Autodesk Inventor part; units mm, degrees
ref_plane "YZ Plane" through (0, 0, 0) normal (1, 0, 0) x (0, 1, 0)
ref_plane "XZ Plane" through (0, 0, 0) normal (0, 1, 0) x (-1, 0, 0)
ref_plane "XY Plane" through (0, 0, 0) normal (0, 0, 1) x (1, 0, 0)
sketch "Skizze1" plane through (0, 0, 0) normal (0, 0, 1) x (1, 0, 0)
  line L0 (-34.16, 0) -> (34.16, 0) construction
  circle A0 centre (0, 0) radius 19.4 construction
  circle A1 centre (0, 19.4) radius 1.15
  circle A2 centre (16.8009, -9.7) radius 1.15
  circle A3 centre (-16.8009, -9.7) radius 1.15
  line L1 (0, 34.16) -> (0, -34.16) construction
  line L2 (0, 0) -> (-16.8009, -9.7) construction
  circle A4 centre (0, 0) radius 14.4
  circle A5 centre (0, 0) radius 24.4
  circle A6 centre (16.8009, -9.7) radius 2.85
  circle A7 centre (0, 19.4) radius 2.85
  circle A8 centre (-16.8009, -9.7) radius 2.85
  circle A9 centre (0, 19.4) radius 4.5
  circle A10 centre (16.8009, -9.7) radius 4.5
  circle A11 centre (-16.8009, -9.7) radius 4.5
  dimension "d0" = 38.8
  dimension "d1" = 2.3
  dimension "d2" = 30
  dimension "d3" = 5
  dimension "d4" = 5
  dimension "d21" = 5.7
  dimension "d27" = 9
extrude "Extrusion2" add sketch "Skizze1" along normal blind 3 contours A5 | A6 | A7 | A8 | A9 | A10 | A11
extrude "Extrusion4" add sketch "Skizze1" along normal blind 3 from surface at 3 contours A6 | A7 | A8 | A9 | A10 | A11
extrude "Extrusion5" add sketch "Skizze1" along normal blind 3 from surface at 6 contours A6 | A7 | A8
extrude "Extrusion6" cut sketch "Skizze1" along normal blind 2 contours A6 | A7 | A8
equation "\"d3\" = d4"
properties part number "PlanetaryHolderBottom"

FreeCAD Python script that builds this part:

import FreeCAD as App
import Part
import Sketcher
from FreeCAD import Vector
Q = App.Units.Quantity

doc = App.newDocument("Part")
body = doc.addObject("PartDesign::Body", "Body")

# Sketch on XY plane
sketch1 = body.newObject("Sketcher::SketchObject", "Sketch")
sketch1.AttachmentSupport = (doc.getObject("XY_Plane"), [""])
sketch1.MapMode = "FlatFace"
sketch1.addGeometry([
    Part.Circle(Vector(0, 0, 0), Vector(0, 0, 1), 24.4),  # 0
    Part.Circle(Vector(0, 0, 0), Vector(0, 0, 1), 14.4),  # 1
    Part.Circle(Vector(-16.8009, -9.7, 0), Vector(0, 0, 1), 1.15),  # 2
    Part.Circle(Vector(16.8009, -9.7, 0), Vector(0, 0, 1), 1.15),  # 3
    Part.Circle(Vector(0, 19.4, 0), Vector(0, 0, 1), 1.15),  # 4
], False)
sketch1.addConstraint([
    Sketcher.Constraint("Coincident", 0, 3, -1, 1),
    Sketcher.Constraint("Coincident", 1, 3, -1, 1),
    Sketcher.Constraint("Equal", 2, 3),
    Sketcher.Constraint("Equal", 3, 4),
    Sketcher.Constraint("Symmetric", 2, 3, 3, 3, -2),
    Sketcher.Constraint("PointOnObject", 4, 3, -2),
    Sketcher.Constraint("Diameter", 2, Q("2.3 mm")),
    Sketcher.Constraint("Diameter", 0, Q("48.8 mm")),
    Sketcher.Constraint("Diameter", 1, Q("28.8 mm")),
    Sketcher.Constraint("DistanceY", 2, 3, -1, 1, Q("9.7 mm")),
    Sketcher.Constraint("DistanceY", -1, 1, 4, 3, Q("19.4 mm")),
    Sketcher.Constraint("DistanceX", 2, 3, -1, 1, Q("16.801 mm")),
])
pad1 = body.newObject("PartDesign::Pad", "Pad")
pad1.Profile = sketch1
pad1.Length = 3

# Sketch on XY plane
sketch2 = body.newObject("Sketcher::SketchObject", "Sketch001")
sketch2.AttachmentSupport = (doc.getObject("XY_Plane"), [""])
sketch2.MapMode = "FlatFace"
sketch2.AttachmentOffset = App.Placement(Vector(0, 0, 3), App.Rotation())
sketch2.addGeometry([
    Part.Circle(Vector(16.8009, -9.7, 0), Vector(0, 0, 1), 4.5),  # 0
    Part.Circle(Vector(16.8009, -9.7, 0), Vector(0, 0, 1), 1.15),  # 1
    Part.Circle(Vector(0, 19.4, 0), Vector(0, 0, 1), 4.5),  # 2
    Part.Circle(Vector(0, 19.4, 0), Vector(0, 0, 1), 1.15),  # 3
    Part.Circle(Vector(-16.8009, -9.7, 0), Vector(0, 0, 1), 4.5),  # 4
    Part.Circle(Vector(-16.8009, -9.7, 0), Vector(0, 0, 1), 1.15),  # 5
], False)
sketch2.addConstraint([
    Sketcher.Constraint("Coincident", 1, 3, 0, 3),
    Sketcher.Constraint("Coincident", 3, 3, 2, 3),
    Sketcher.Constraint("Coincident", 5, 3, 4, 3),
    Sketcher.Constraint("Equal", 0, 2),
    Sketcher.Constraint("Equal", 1, 3),
    Sketcher.Constraint("Equal", 2, 4),
    Sketcher.Constraint("Equal", 3, 5),
    Sketcher.Constraint("Symmetric", 0, 3, 4, 3, -2),
    Sketcher.Constraint("PointOnObject", 2, 3, -2),
    Sketcher.Constraint("Diameter", 0, Q("9 mm")),
    Sketcher.Constraint("Diameter", 1, Q("2.3 mm")),
    Sketcher.Constraint("DistanceY", 0, 3, -1, 1, Q("9.7 mm")),
    Sketcher.Constraint("DistanceY", -1, 1, 2, 3, Q("19.4 mm")),
    Sketcher.Constraint("DistanceX", -1, 1, 0, 3, Q("16.801 mm")),
])
pad2 = body.newObject("PartDesign::Pad", "Pad001")
pad2.Profile = sketch2
pad2.Length = 3

# Sketch on XY plane
sketch3 = body.newObject("Sketcher::SketchObject", "Sketch002")
sketch3.AttachmentSupport = (doc.getObject("XY_Plane"), [""])
sketch3.MapMode = "FlatFace"
sketch3.AttachmentOffset = App.Placement(Vector(0, 0, 6), App.Rotation())
sketch3.addGeometry([
    Part.Circle(Vector(16.8009, -9.7, 0), Vector(0, 0, 1), 2.85),  # 0
    Part.Circle(Vector(16.8009, -9.7, 0), Vector(0, 0, 1), 1.15),  # 1
    Part.Circle(Vector(0, 19.4, 0), Vector(0, 0, 1), 2.85),  # 2
    Part.Circle(Vector(0, 19.4, 0), Vector(0, 0, 1), 1.15),  # 3
    Part.Circle(Vector(-16.8009, -9.7, 0), Vector(0, 0, 1), 2.85),  # 4
    Part.Circle(Vector(-16.8009, -9.7, 0), Vector(0, 0, 1), 1.15),  # 5
], False)
sketch3.addConstraint([
    Sketcher.Constraint("Coincident", 1, 3, 0, 3),
    Sketcher.Constraint("Coincident", 3, 3, 2, 3),
    Sketcher.Constraint("Coincident", 5, 3, 4, 3),
    Sketcher.Constraint("Equal", 0, 2),
    Sketcher.Constraint("Equal", 1, 3),
    Sketcher.Constraint("Equal", 2, 4),
    Sketcher.Constraint("Equal", 3, 5),
    Sketcher.Constraint("Symmetric", 0, 3, 4, 3, -2),
    Sketcher.Constraint("PointOnObject", 2, 3, -2),
    Sketcher.Constraint("Diameter", 0, Q("5.7 mm")),
    Sketcher.Constraint("Diameter", 1, Q("2.3 mm")),
    Sketcher.Constraint("DistanceY", 0, 3, -1, 1, Q("9.7 mm")),
    Sketcher.Constraint("DistanceY", -1, 1, 2, 3, Q("19.4 mm")),
    Sketcher.Constraint("DistanceX", -1, 1, 0, 3, Q("16.801 mm")),
])
pad3 = body.newObject("PartDesign::Pad", "Pad002")
pad3.Profile = sketch3
pad3.Length = 3

# Sketch on XY plane
sketch4 = body.newObject("Sketcher::SketchObject", "Sketch003")
sketch4.AttachmentSupport = (doc.getObject("XY_Plane"), [""])
sketch4.MapMode = "FlatFace"
sketch4.addGeometry([
    Part.Circle(Vector(16.8009, -9.7, 0), Vector(0, 0, 1), 2.85),  # 0
    Part.Circle(Vector(16.8009, -9.7, 0), Vector(0, 0, 1), 1.15),  # 1
    Part.Circle(Vector(0, 19.4, 0), Vector(0, 0, 1), 2.85),  # 2
    Part.Circle(Vector(0, 19.4, 0), Vector(0, 0, 1), 1.15),  # 3
    Part.Circle(Vector(-16.8009, -9.7, 0), Vector(0, 0, 1), 2.85),  # 4
    Part.Circle(Vector(-16.8009, -9.7, 0), Vector(0, 0, 1), 1.15),  # 5
], False)
sketch4.addConstraint([
    Sketcher.Constraint("Coincident", 1, 3, 0, 3),
    Sketcher.Constraint("Coincident", 3, 3, 2, 3),
    Sketcher.Constraint("Coincident", 5, 3, 4, 3),
    Sketcher.Constraint("Equal", 0, 2),
    Sketcher.Constraint("Equal", 1, 3),
    Sketcher.Constraint("Equal", 2, 4),
    Sketcher.Constraint("Equal", 3, 5),
    Sketcher.Constraint("Symmetric", 0, 3, 4, 3, -2),
    Sketcher.Constraint("PointOnObject", 2, 3, -2),
    Sketcher.Constraint("Diameter", 0, Q("5.7 mm")),
    Sketcher.Constraint("Diameter", 1, Q("2.3 mm")),
    Sketcher.Constraint("DistanceY", 0, 3, -1, 1, Q("9.7 mm")),
    Sketcher.Constraint("DistanceY", -1, 1, 2, 3, Q("19.4 mm")),
    Sketcher.Constraint("DistanceX", -1, 1, 0, 3, Q("16.801 mm")),
])
pocket1 = body.newObject("PartDesign::Pocket", "Pocket")
pocket1.Profile = sketch4
pocket1.Length = 2
pocket1.Reversed = True

doc.recompute()
